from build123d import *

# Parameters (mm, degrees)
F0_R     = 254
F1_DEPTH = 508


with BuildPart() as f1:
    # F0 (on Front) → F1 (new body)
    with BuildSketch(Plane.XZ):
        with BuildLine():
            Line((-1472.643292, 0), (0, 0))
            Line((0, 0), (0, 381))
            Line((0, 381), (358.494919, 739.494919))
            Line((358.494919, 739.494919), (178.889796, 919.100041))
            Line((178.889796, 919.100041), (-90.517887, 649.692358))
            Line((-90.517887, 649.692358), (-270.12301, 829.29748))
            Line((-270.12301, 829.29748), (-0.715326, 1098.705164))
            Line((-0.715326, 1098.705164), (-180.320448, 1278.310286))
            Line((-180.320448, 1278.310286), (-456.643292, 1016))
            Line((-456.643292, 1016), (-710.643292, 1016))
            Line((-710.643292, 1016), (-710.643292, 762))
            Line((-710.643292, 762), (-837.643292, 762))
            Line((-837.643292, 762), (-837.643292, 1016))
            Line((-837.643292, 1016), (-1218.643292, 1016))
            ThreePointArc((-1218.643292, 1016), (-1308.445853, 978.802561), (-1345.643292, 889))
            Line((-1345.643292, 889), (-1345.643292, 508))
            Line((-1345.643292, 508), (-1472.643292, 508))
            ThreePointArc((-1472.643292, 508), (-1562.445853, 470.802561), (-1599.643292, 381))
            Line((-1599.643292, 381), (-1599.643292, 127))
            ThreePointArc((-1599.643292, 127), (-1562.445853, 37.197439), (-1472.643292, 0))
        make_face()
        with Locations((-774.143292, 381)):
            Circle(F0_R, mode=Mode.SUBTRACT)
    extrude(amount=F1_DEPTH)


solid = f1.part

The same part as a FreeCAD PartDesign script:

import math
import FreeCAD as App
import Part
import Sketcher
from FreeCAD import Vector
Q = App.Units.Quantity

doc = App.newDocument("Part")
body = doc.addObject("PartDesign::Body", "Body")

# Sketch on XZ plane
sketch1 = body.newObject("Sketcher::SketchObject", "Sketch")
sketch1.AttachmentSupport = (doc.getObject("XZ_Plane"), [""])
sketch1.MapMode = "FlatFace"
sketch1.addGeometry(Part.LineSegment(Vector(-1472.643292, 0, 0), Vector(0, 0, 0)), False)
sketch1.addGeometry(Part.LineSegment(Vector(0, 0, 0), Vector(0, 381, 0)), False)
sketch1.addGeometry(Part.LineSegment(Vector(0, 381, 0), Vector(358.494919, 739.494919, 0)), False)
sketch1.addGeometry(Part.LineSegment(Vector(358.494919, 739.494919, 0), Vector(178.889796, 919.100041, 0)), False)
sketch1.addGeometry(Part.LineSegment(Vector(178.889796, 919.100041, 0), Vector(-90.517887, 649.692358, 0)), False)
sketch1.addGeometry(Part.LineSegment(Vector(-90.517887, 649.692358, 0), Vector(-270.12301, 829.29748, 0)), False)
sketch1.addGeometry(Part.LineSegment(Vector(-270.12301, 829.29748, 0), Vector(-0.715326, 1098.705164, 0)), False)
sketch1.addGeometry(Part.LineSegment(Vector(-0.715326, 1098.705164, 0), Vector(-180.320448, 1278.310286, 0)), False)
sketch1.addGeometry(Part.LineSegment(Vector(-180.320448, 1278.310286, 0), Vector(-456.643292, 1016, 0)), False)
sketch1.addGeometry(Part.LineSegment(Vector(-456.643292, 1016, 0), Vector(-710.643292, 1016, 0)), False)
sketch1.addGeometry(Part.LineSegment(Vector(-710.643292, 1016, 0), Vector(-710.643292, 762, 0)), False)
sketch1.addGeometry(Part.LineSegment(Vector(-710.643292, 762, 0), Vector(-837.643292, 762, 0)), False)
sketch1.addGeometry(Part.LineSegment(Vector(-837.643292, 762, 0), Vector(-837.643292, 1016, 0)), False)
sketch1.addGeometry(Part.LineSegment(Vector(-837.643292, 1016, 0), Vector(-1218.643292, 1016, 0)), False)
sketch1.addGeometry(Part.ArcOfCircle(Part.Circle(Vector(-1218.643291, 888.999999, 0), Vector(0, 0, 1), 127.000001), math.radians(90), math.radians(180)), False)
sketch1.addGeometry(Part.LineSegment(Vector(-1345.643292, 889, 0), Vector(-1345.643292, 508, 0)), False)
sketch1.addGeometry(Part.LineSegment(Vector(-1345.643292, 508, 0), Vector(-1472.643292, 508, 0)), False)
sketch1.addGeometry(Part.ArcOfCircle(Part.Circle(Vector(-1472.643291, 380.999999, 0), Vector(0, 0, 1), 127.000001), math.radians(90), math.radians(180)), False)
sketch1.addGeometry(Part.LineSegment(Vector(-1599.643292, 381, 0), Vector(-1599.643292, 127, 0)), False)
sketch1.addGeometry(Part.ArcOfCircle(Part.Circle(Vector(-1472.643291, 127.000001, 0), Vector(0, 0, 1), 127.000001), math.radians(-180), math.radians(-90)), False)
sketch1.addGeometry(Part.Circle(Vector(-774.143292, 381, 0), Vector(0, 0, 1), 254), False)
sketch1.addConstraint(Sketcher.Constraint("Coincident", 0, 2, 1, 1))
sketch1.addConstraint(Sketcher.Constraint("Coincident", 1, 2, 2, 1))
sketch1.addConstraint(Sketcher.Constraint("Coincident", 2, 2, 3, 1))
sketch1.addConstraint(Sketcher.Constraint("Coincident", 3, 2, 4, 1))
sketch1.addConstraint(Sketcher.Constraint("Coincident", 4, 2, 5, 1))
sketch1.addConstraint(Sketcher.Constraint("Coincident", 5, 2, 6, 1))
sketch1.addConstraint(Sketcher.Constraint("Coincident", 6, 2, 7, 1))
sketch1.addConstraint(Sketcher.Constraint("Coincident", 7, 2, 8, 1))
sketch1.addConstraint(Sketcher.Constraint("Coincident", 8, 2, 9, 1))
sketch1.addConstraint(Sketcher.Constraint("Coincident", 9, 2, 10, 1))
sketch1.addConstraint(Sketcher.Constraint("Coincident", 10, 2, 11, 1))
sketch1.addConstraint(Sketcher.Constraint("Coincident", 11, 2, 12, 1))
sketch1.addConstraint(Sketcher.Constraint("Coincident", 12, 2, 13, 1))
sketch1.addConstraint(Sketcher.Constraint("Tangent", 13, 2, 14, 1))
sketch1.addConstraint(Sketcher.Constraint("Tangent", 14, 2, 15, 1))
sketch1.addConstraint(Sketcher.Constraint("Coincident", 15, 2, 16, 1))
sketch1.addConstraint(Sketcher.Constraint("Tangent", 16, 2, 17, 1))
sketch1.addConstraint(Sketcher.Constraint("Tangent", 17, 2, 18, 1))
sketch1.addConstraint(Sketcher.Constraint("Tangent", 18, 2, 19, 1))
sketch1.addConstraint(Sketcher.Constraint("Tangent", 19, 2, 0, 1))
sketch1.addConstraint(Sketcher.Constraint("Horizontal", 0))
sketch1.addConstraint(Sketcher.Constraint("Vertical", 1))
sketch1.addConstraint(Sketcher.Constraint("Horizontal", 9))
sketch1.addConstraint(Sketcher.Constraint("Vertical", 10))
sketch1.addConstraint(Sketcher.Constraint("Horizontal", 11))
sketch1.addConstraint(Sketcher.Constraint("Vertical", 12))
sketch1.addConstraint(Sketcher.Constraint("Horizontal", 13))
sketch1.addConstraint(Sketcher.Constraint("Vertical", 15))
sketch1.addConstraint(Sketcher.Constraint("Horizontal", 16))
sketch1.addConstraint(Sketcher.Constraint("Vertical", 18))
sketch1.addConstraint(Sketcher.Constraint("Coincident", 0, 2, -1, 1))
sketch1.addConstraint(Sketcher.Constraint("Equal", 14, 17))
sketch1.addConstraint(Sketcher.Constraint("Equal", 17, 19))
sketch1.addConstraint(Sketcher.Constraint("Perpendicular", 2, 3))
sketch1.addConstraint(Sketcher.Constraint("Perpendicular", 3, 4))
sketch1.addConstraint(Sketcher.Constraint("Perpendicular", 4, 5))
sketch1.addConstraint(Sketcher.Constraint("Perpendicular", 5, 6))
sketch1.addConstraint(Sketcher.Constraint("Perpendicular", 6, 7))
sketch1.addConstraint(Sketcher.Constraint("Horizontal", 17, 3, 20, 3))
sketch1.addConstraint(Sketcher.Constraint("Horizontal", 20, 3, 1, 2))
sketch1.addConstraint(Sketcher.Constraint("Horizontal", 9, 2, 12, 2))
sketch1.addConstraint(Sketcher.Constraint("Equal", 11, 16))
sketch1.addConstraint(Sketcher.Constraint("Equal", 13, 1))
sketch1.addConstraint(Sketcher.Constraint("Equal", 9, 10))
sketch1.addConstraint(Sketcher.Constraint("Equal", 1, 15))
sketch1.addConstraint(Sketcher.Constraint("Equal", 12, 18))
sketch1.addConstraint(Sketcher.Constraint("Equal", 3, 5))
sketch1.addConstraint(Sketcher.Constraint("Equal", 4, 6))
sketch1.addConstraint(Sketcher.Constraint("Equal", 5, 7))
sketch1.addConstraint(Sketcher.Constraint("Equal", 6, 8))
sketch1.addConstraint(Sketcher.Constraint("Diameter", 20, Q("20 in")))
sketch1.addConstraint(Sketcher.Constraint("Radius", 14, Q("5 in")))
sketch1.addConstraint(Sketcher.Constraint("DistanceX", 9, 2, 9, 1, Q("10 in")))
sketch1.addConstraint(Sketcher.Constraint("DistanceX", 11, 2, 11, 1, Q("5 in")))
sketch1.addConstraint(Sketcher.Constraint("Distance", 3, Q("10 in")))
sketch1.addConstraint(Sketcher.Constraint("Distance", 4, Q("15 in")))
sketch1.addConstraint(Sketcher.Constraint("Angle", 2, Q("45 deg")))
sketch1.addConstraint(Sketcher.Constraint("DistanceX", 14, 3, 20, 3, Q("17.5 in")))
sketch1.addConstraint(Sketcher.Constraint("DistanceX", 0, 1, 0, 2, 1472.643292))
pad1 = body.newObject("PartDesign::Pad", "Pad")
pad1.Profile = sketch1
pad1.Length = Q("20 in")

doc.recompute()
